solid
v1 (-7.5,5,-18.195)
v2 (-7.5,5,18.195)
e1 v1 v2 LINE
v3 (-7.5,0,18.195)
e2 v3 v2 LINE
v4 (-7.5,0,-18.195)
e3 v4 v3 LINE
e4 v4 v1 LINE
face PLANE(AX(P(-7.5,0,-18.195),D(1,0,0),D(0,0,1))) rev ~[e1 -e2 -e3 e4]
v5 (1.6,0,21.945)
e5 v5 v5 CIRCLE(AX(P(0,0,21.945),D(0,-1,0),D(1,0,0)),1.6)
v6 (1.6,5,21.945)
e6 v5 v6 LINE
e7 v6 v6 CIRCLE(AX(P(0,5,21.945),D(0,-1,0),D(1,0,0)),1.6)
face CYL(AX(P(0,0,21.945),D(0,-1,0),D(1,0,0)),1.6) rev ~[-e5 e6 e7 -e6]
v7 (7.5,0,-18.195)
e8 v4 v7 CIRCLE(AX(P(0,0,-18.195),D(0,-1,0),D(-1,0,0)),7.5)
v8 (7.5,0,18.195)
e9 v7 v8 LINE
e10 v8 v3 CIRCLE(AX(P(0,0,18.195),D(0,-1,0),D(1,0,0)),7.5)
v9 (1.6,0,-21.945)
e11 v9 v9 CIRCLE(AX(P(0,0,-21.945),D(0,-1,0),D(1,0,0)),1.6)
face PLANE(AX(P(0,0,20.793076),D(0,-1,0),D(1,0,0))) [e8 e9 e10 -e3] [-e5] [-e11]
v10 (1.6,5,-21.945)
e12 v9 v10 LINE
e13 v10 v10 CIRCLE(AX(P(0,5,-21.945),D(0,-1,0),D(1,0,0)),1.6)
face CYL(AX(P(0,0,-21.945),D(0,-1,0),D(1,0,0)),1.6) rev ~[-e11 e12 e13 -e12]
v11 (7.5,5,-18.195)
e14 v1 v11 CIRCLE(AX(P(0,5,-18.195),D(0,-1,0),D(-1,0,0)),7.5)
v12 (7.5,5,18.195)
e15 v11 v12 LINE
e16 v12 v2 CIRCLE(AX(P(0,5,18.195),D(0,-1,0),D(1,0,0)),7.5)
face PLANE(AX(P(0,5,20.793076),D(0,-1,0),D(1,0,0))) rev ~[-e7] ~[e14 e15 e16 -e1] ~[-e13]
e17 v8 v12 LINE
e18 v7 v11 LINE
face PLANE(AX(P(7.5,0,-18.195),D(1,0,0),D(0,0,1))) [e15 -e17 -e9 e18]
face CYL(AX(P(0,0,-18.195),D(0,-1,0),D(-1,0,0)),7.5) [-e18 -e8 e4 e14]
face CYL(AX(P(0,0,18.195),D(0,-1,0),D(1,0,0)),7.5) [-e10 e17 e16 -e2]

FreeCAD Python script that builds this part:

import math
import FreeCAD as App
import Part
import Sketcher

V = App.Vector

doc = App.newDocument("Part")
params = doc.addObject("Spreadsheet::Sheet", "Params")
for row, (alias, value) in enumerate([
    ("sketch1_diameter", "3.2 mm"),
    ("sketch1_radius", "7.5 mm"),
    ("sketch1_height", "36.39 mm"),
    ("pad1_length", "5 mm"),
], start=1):
    params.set(f"A{row}", alias)
    params.set(f"B{row}", "=" + value)
    params.setAlias(f"B{row}", alias)

body = doc.addObject("PartDesign::Body", "Body")

# Sketch on XZ plane
sketch1 = body.newObject("Sketcher::SketchObject", "Sketch")
sketch1.AttachmentSupport = (doc.getObject("XZ_Plane"), [""])
sketch1.MapMode = "FlatFace"
sketch1.addGeometry(Part.ArcOfCircle(Part.Circle(V(0, 18.195, 0), V(0, 0, 1), 7.5), math.radians(0), math.radians(180)), False)
sketch1.addGeometry(Part.LineSegment(V(-7.5, 18.195, 0), V(-7.5, -18.195, 0)), False)
sketch1.addGeometry(Part.ArcOfCircle(Part.Circle(V(0, -18.195, 0), V(0, 0, 1), 7.5), math.radians(180), math.radians(360)), False)
sketch1.addGeometry(Part.LineSegment(V(7.5, -18.195, 0), V(7.5, 18.195, 0)), False)
sketch1.addGeometry(Part.Circle(V(0, -21.945, 0), V(0, 0, 1), 1.6), False)
sketch1.addGeometry(Part.Circle(V(0, 21.945, 0), V(0, 0, 1), 1.6), False)
sketch1.addConstraint(Sketcher.Constraint("Tangent", 0, 2, 1, 1))
sketch1.addConstraint(Sketcher.Constraint("Tangent", 1, 2, 2, 1))
sketch1.addConstraint(Sketcher.Constraint("Tangent", 2, 2, 3, 1))
sketch1.addConstraint(Sketcher.Constraint("Tangent", 3, 2, 0, 1))
sketch1.addConstraint(Sketcher.Constraint("Vertical", 1))
sketch1.addConstraint(Sketcher.Constraint("Vertical", 3))
sketch1.addConstraint(Sketcher.Constraint("Equal", 4, 5))
sketch1.addConstraint(Sketcher.Constraint("Symmetric", 0, 3, 2, 3, -1, 1))
sketch1.addConstraint(Sketcher.Constraint("Symmetric", 4, 3, 5, 3, -1, 1))
sketch1.addConstraint(Sketcher.Constraint("PointOnObject", 4, 3, -2))
sketch1.addConstraint(Sketcher.Constraint("Diameter", 4, 3.2))
sketch1.addConstraint(Sketcher.Constraint("Radius", 0, 7.5))
sketch1.addConstraint(Sketcher.Constraint("DistanceY", 1, 2, 1, 1, 36.39))
sketch1.addConstraint(Sketcher.Constraint("DistanceY", 4, 3, 2, 3, 3.75))
sketch1.setExpression("Constraints[10]", "Params.sketch1_diameter")
sketch1.setExpression("Constraints[11]", "Params.sketch1_radius")
sketch1.setExpression("Constraints[12]", "Params.sketch1_height")
pad1 = body.newObject("PartDesign::Pad", "Pad")
pad1.Profile = sketch1
pad1.setExpression("Length", "Params.pad1_length")
pad1.Reversed = True

doc.recompute()
